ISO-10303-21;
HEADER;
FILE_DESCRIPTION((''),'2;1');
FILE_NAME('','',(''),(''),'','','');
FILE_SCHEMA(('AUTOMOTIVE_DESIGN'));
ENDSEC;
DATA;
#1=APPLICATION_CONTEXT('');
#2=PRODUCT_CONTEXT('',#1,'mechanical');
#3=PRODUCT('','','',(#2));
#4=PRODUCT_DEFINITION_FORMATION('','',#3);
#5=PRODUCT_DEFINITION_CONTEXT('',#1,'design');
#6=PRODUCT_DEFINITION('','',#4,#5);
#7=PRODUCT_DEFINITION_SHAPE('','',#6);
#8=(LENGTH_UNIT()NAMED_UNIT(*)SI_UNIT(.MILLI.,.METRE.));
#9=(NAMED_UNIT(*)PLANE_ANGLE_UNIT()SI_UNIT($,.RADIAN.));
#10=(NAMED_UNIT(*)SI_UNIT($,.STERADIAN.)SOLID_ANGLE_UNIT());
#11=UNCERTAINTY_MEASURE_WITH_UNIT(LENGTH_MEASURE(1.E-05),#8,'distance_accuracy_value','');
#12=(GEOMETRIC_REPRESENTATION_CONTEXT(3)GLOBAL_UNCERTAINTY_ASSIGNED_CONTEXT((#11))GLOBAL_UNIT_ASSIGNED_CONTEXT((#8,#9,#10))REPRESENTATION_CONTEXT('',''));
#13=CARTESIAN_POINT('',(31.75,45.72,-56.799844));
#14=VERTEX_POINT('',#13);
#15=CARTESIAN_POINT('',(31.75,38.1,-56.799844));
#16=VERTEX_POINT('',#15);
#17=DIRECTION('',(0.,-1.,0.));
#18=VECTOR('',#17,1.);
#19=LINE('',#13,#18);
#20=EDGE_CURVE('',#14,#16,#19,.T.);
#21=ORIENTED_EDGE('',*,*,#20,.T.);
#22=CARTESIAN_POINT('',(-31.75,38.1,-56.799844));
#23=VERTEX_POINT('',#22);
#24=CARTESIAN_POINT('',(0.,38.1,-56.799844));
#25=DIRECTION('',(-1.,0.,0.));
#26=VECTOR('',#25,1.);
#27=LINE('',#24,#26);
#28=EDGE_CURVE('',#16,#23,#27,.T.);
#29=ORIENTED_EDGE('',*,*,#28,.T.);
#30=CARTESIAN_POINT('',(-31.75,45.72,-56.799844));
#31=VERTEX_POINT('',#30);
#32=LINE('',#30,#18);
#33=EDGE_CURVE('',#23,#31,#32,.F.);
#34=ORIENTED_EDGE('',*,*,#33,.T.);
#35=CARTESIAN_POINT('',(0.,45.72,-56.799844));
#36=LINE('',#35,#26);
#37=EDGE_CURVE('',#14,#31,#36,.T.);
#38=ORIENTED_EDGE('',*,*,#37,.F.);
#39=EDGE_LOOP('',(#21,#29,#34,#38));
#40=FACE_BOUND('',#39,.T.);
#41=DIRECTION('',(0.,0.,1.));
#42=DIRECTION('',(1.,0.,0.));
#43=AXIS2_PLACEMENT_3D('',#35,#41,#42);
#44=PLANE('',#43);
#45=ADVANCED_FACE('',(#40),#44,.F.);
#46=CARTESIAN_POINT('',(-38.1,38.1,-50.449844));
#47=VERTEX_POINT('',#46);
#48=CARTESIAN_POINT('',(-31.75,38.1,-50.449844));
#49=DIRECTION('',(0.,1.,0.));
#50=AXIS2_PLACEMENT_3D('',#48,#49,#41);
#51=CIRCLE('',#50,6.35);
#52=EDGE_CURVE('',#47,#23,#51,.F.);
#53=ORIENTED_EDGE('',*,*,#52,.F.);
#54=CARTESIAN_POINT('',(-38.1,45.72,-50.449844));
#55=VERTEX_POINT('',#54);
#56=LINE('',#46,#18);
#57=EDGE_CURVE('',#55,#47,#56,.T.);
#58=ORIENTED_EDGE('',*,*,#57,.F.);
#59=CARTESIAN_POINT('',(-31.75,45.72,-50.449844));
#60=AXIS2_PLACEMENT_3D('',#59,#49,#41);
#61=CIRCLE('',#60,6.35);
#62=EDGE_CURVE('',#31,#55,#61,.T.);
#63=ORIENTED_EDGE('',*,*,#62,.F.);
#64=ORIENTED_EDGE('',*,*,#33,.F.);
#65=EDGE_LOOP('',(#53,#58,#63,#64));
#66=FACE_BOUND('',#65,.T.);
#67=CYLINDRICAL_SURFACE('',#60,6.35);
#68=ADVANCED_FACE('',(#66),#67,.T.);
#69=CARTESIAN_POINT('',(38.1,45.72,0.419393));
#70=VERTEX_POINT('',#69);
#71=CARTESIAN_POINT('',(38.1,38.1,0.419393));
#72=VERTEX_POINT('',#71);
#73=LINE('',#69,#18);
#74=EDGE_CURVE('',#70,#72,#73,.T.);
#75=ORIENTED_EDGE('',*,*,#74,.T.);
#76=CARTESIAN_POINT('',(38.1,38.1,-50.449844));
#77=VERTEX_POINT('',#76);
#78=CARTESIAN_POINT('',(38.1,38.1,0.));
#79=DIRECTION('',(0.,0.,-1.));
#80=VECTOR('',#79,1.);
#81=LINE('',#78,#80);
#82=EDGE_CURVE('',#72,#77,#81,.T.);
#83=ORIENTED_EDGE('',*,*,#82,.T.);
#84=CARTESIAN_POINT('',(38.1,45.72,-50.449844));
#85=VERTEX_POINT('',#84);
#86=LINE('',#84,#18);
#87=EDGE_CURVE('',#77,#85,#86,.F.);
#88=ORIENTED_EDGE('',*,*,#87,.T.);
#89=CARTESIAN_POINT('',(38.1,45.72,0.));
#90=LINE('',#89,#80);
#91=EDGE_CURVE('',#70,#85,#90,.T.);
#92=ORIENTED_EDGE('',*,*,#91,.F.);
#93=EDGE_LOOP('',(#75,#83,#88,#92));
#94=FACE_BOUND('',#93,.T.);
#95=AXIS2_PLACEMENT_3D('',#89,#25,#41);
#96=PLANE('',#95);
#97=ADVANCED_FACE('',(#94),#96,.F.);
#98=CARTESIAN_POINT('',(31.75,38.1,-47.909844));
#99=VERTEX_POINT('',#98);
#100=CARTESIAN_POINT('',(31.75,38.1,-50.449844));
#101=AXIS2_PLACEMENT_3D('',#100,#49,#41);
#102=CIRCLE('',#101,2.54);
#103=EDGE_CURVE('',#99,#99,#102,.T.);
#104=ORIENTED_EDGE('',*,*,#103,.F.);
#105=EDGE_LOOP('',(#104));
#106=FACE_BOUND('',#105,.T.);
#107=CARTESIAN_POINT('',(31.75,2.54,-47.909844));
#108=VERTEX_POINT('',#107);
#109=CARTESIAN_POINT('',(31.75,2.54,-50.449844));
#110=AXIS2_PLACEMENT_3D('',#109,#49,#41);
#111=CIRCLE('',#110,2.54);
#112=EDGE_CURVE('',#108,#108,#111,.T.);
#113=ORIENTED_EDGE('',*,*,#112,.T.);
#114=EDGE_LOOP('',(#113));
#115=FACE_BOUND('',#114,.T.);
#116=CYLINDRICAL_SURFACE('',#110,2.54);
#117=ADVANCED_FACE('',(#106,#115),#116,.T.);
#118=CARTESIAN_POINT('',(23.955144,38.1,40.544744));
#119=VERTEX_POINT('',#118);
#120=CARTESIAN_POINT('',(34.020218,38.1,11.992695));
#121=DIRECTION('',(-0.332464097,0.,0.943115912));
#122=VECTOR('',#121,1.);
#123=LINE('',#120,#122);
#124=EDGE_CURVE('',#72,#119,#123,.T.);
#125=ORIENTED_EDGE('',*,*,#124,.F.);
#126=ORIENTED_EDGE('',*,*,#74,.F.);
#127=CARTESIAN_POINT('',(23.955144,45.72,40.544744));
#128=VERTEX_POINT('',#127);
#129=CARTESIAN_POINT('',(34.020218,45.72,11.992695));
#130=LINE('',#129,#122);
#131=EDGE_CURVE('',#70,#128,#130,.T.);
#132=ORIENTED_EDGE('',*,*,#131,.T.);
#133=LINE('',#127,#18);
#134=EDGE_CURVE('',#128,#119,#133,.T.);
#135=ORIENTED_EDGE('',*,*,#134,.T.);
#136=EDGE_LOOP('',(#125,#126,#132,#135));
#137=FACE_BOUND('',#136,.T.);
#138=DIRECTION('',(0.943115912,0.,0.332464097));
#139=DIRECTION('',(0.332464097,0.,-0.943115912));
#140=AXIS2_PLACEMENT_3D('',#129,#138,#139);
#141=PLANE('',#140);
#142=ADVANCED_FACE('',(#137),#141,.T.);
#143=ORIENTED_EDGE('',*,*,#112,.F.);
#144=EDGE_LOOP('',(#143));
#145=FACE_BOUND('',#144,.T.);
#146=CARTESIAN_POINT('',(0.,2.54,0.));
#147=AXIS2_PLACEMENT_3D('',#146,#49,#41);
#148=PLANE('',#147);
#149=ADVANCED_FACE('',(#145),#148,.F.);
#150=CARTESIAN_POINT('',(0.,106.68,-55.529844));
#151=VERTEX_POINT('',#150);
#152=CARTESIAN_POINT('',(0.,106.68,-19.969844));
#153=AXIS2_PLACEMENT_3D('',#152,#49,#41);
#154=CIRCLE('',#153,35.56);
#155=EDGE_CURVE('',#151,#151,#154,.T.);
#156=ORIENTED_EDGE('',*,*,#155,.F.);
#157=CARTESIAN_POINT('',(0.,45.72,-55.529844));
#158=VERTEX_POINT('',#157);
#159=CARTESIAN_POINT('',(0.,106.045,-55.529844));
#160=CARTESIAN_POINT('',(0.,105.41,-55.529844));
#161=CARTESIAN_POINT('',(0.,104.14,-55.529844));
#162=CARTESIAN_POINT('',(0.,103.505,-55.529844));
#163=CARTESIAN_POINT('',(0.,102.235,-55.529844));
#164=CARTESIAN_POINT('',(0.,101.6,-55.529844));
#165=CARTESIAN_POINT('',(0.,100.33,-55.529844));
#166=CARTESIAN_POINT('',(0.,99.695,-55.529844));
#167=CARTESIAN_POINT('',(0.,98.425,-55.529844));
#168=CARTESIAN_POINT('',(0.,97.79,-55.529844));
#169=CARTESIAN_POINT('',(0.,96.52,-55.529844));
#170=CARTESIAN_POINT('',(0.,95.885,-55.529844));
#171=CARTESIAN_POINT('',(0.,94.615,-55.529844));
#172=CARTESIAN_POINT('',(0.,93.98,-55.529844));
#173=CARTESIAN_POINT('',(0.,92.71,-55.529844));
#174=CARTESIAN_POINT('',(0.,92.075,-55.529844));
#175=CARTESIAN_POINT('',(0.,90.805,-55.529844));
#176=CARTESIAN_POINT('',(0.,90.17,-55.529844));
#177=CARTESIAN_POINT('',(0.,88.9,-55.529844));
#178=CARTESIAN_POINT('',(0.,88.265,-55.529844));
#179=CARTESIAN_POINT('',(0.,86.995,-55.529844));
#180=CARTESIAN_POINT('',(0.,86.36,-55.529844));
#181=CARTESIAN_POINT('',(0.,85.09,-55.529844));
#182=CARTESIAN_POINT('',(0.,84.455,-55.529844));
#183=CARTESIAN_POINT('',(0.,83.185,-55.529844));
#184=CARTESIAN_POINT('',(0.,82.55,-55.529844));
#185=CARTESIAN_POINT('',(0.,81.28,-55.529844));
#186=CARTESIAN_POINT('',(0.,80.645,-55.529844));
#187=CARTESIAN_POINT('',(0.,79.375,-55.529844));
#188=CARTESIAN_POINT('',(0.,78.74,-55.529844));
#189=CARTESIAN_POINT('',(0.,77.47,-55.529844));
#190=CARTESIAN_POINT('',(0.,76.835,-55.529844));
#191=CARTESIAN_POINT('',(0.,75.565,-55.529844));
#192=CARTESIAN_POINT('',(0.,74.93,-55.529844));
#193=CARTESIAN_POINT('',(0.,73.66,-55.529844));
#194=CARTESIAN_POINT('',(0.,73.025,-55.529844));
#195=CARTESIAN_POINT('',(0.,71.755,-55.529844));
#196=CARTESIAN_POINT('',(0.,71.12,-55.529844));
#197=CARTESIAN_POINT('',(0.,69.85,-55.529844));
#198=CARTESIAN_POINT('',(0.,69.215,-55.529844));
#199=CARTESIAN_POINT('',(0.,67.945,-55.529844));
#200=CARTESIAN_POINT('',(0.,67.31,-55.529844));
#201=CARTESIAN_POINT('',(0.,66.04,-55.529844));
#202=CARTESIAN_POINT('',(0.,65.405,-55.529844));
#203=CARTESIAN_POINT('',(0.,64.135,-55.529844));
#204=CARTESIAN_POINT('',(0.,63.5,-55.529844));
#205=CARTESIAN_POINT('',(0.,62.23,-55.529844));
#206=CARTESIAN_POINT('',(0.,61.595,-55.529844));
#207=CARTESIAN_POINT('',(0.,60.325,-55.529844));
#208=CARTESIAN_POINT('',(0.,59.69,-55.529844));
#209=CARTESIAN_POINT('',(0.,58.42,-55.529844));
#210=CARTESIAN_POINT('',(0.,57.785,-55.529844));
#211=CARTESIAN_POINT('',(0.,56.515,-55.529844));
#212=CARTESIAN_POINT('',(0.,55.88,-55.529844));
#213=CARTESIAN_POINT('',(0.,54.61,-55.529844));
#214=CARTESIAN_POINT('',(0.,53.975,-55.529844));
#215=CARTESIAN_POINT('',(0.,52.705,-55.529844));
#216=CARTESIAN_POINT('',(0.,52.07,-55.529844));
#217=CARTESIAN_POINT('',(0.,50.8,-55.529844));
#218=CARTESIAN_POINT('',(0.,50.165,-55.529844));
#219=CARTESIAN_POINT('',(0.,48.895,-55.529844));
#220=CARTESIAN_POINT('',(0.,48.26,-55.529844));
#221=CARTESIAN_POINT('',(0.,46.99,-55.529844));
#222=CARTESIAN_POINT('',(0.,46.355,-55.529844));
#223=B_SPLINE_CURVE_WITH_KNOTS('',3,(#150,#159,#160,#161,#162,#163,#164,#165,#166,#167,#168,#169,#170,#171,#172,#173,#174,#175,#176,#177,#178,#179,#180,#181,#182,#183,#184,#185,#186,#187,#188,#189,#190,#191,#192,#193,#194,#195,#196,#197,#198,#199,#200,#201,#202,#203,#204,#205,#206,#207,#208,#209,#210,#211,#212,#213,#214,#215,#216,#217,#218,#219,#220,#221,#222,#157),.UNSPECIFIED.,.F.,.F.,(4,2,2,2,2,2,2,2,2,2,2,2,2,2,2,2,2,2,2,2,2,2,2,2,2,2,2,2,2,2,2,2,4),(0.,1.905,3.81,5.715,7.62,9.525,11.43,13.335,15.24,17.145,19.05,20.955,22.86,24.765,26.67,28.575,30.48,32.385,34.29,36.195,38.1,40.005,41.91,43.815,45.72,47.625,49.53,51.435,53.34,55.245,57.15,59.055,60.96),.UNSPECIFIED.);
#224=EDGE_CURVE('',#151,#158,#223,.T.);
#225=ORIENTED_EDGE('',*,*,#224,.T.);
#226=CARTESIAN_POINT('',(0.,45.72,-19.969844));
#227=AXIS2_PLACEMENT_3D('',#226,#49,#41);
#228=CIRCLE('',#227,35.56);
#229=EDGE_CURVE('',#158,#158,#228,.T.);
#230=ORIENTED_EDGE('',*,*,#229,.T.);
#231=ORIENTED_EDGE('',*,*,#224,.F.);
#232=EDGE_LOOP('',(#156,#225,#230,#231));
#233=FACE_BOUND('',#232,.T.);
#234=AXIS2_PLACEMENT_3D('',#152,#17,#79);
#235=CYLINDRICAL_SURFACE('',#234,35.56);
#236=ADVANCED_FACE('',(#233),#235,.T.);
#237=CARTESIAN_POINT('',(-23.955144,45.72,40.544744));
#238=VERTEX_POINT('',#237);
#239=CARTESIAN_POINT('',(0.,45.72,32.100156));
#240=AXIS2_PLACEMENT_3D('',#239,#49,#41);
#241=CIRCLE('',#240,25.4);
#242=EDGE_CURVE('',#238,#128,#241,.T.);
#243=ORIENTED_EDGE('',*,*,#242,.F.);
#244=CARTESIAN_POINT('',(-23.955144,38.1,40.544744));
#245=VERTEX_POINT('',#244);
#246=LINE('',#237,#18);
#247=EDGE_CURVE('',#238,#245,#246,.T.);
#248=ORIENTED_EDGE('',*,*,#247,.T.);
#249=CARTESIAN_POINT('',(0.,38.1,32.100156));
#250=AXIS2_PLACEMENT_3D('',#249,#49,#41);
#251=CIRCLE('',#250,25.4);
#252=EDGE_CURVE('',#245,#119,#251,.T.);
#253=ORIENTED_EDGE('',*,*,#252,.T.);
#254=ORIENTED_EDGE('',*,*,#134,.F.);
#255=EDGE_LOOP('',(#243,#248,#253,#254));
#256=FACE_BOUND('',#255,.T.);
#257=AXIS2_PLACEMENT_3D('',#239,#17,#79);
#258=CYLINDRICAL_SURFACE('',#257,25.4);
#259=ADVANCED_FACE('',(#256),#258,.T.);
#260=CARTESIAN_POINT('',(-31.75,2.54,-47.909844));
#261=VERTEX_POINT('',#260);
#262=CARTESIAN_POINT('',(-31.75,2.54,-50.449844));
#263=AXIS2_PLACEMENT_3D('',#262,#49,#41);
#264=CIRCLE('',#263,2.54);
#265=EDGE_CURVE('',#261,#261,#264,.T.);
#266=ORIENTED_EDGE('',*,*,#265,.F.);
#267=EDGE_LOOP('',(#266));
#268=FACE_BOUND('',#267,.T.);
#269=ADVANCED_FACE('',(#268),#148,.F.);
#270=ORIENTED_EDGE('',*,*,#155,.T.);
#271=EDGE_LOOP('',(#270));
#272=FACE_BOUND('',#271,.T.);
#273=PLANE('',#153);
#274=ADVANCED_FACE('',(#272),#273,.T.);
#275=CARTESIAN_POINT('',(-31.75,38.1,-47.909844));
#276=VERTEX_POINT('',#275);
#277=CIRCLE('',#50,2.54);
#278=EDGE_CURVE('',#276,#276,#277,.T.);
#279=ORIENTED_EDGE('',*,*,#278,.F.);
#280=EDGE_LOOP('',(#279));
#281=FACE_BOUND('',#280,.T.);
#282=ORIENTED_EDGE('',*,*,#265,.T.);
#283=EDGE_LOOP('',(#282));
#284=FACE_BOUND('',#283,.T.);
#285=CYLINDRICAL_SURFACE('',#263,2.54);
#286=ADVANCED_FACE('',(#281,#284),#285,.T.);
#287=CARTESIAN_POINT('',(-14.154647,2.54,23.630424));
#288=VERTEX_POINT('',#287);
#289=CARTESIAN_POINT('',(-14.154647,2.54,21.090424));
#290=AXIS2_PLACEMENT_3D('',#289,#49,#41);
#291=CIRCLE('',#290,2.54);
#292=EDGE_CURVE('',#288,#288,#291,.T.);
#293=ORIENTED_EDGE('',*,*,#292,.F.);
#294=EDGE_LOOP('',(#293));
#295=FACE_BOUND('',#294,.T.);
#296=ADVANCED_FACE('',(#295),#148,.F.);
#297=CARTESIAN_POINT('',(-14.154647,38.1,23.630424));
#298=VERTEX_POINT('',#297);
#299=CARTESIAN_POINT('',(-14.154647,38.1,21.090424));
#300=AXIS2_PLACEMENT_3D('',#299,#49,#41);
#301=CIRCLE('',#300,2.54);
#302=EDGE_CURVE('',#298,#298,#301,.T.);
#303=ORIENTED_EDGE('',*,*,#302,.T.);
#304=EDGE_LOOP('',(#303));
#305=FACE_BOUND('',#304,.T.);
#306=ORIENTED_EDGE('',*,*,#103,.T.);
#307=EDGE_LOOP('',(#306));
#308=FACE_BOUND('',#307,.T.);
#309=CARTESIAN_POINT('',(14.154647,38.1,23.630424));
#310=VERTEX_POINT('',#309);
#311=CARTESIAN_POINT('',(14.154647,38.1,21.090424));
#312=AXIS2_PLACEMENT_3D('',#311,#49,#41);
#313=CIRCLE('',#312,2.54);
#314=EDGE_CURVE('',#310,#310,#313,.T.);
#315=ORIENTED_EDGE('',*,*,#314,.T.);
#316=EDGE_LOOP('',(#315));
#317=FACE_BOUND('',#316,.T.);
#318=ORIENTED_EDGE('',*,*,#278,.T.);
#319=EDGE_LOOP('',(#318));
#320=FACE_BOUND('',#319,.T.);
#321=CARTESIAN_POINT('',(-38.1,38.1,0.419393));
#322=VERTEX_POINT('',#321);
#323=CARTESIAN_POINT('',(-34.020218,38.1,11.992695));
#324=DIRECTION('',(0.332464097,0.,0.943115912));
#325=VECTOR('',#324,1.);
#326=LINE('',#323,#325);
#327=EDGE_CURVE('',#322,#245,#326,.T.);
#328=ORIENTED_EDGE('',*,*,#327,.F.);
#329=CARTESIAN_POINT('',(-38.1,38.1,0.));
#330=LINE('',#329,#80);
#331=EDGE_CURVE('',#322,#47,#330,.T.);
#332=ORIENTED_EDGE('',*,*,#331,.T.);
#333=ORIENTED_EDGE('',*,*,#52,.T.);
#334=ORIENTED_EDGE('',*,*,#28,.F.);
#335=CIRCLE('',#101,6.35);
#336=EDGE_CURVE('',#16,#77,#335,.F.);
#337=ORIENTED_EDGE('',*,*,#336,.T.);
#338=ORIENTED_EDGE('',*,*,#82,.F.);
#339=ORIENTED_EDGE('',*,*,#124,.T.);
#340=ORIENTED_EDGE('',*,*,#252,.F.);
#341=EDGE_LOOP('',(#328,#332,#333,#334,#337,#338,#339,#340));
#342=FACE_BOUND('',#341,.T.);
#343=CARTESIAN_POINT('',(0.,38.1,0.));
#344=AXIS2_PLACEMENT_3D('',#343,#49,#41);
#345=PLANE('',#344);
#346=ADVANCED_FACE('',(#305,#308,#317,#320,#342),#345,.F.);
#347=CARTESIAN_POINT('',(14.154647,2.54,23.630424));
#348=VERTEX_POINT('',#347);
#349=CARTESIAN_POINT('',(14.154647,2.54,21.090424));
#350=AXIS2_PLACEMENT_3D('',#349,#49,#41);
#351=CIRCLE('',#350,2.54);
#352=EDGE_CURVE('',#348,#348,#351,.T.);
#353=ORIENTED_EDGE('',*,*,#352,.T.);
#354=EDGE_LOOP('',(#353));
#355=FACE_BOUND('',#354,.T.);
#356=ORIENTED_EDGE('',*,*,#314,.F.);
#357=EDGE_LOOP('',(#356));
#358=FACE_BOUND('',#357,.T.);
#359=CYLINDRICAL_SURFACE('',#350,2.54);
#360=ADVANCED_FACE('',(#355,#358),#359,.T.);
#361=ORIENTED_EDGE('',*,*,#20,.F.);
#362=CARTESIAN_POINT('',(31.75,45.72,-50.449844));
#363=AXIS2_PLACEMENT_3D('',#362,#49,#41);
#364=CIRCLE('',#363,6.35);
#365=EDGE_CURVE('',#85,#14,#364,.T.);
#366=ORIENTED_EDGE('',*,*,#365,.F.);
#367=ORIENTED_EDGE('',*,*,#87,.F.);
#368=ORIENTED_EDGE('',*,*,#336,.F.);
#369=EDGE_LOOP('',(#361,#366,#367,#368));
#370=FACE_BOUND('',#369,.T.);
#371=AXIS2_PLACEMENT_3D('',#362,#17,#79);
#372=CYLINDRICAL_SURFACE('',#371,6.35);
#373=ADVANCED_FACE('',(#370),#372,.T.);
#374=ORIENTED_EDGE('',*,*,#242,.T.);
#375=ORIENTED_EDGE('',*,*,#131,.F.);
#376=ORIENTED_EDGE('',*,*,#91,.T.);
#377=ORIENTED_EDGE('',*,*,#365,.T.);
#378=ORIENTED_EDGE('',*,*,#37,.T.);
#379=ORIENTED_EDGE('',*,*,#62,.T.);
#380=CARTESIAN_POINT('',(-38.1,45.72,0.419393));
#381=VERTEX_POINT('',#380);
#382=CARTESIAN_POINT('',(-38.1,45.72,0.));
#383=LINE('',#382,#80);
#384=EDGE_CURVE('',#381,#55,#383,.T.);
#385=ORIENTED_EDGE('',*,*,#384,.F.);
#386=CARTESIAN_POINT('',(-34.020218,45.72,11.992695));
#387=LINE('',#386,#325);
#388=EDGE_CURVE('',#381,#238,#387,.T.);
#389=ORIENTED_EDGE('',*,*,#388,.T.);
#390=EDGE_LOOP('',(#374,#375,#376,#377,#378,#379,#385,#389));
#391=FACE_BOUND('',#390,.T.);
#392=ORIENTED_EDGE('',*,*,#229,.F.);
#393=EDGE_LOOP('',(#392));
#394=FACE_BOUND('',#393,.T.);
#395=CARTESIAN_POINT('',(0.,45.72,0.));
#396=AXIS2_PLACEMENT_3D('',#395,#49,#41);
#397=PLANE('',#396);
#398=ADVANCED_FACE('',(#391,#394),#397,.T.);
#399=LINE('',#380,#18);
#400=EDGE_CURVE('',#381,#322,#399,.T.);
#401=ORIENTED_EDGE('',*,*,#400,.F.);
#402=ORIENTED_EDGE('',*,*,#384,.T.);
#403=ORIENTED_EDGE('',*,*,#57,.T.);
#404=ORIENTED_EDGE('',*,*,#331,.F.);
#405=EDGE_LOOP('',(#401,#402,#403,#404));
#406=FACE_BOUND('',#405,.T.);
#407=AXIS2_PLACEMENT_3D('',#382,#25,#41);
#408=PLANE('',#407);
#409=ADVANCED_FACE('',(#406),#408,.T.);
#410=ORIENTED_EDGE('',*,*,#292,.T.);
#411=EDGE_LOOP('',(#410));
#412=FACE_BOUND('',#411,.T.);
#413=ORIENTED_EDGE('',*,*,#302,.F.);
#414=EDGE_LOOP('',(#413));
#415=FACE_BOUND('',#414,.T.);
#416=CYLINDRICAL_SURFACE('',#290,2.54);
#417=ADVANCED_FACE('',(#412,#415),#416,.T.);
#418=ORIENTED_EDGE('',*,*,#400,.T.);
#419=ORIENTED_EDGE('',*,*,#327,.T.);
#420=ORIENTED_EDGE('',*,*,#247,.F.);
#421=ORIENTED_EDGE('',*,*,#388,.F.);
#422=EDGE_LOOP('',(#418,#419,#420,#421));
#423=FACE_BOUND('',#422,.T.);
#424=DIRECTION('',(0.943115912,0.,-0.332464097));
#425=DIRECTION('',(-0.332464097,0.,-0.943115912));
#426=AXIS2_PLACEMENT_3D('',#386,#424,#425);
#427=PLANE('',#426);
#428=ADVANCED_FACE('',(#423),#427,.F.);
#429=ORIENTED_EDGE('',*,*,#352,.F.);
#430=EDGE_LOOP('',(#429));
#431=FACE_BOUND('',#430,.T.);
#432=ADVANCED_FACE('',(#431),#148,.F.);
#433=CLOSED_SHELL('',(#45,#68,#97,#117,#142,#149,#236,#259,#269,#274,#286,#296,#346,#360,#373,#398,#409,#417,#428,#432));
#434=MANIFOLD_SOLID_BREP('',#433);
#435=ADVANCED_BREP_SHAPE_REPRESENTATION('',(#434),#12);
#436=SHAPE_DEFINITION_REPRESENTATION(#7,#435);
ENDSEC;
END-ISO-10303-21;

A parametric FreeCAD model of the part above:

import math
import FreeCAD as App
import Part
import Sketcher

V = App.Vector
Q = App.Units.Quantity


def edges_at(feature, points):
    """Names of the edges that pass closest to the given points."""
    edges = feature.Shape.Edges
    near = lambda p: min(range(len(edges)), key=lambda i: edges[i].distToShape(Part.Vertex(*p))[0])
    return sorted({f"Edge{near(p) + 1}" for p in points})

doc = App.newDocument("Part")
body = doc.addObject("PartDesign::Body", "Body")

sketch1 = body.newObject("Sketcher::SketchObject", "Sketch")
sketch1.AttachmentSupport = (doc.getObject("XZ_Plane"), [""])
sketch1.MapMode = "FlatFace"
sketch1.AttachmentOffset = App.Placement(V(0, 0, -1.5 * 25.4), App.Rotation())
sketch1.addGeometry([
    Part.LineSegment(V(-38, 0, 0), V(-24, 41, 0)),
    Part.ArcOfCircle(Part.Circle(V(0, 32, 0), V(0, 0, 1), 25), math.radians(19), math.radians(161)),
    Part.LineSegment(V(24, 41, 0), V(38, 0, 0)),
    Part.LineSegment(V(38, 0, 0), V(38, -57, 0)),
    Part.LineSegment(V(38, -57, 0), V(-38, -57, 0)),
    Part.LineSegment(V(-38, -57, 0), V(-38, 0, 0)),
], False)
sketch1.addConstraint([
    Sketcher.Constraint("Tangent", 0, 2, 1, 2),
    Sketcher.Constraint("Tangent", 1, 1, 2, 1),
    Sketcher.Constraint("Coincident", 2, 2, 3, 1),
    Sketcher.Constraint("Coincident", 3, 2, 4, 1),
    Sketcher.Constraint("Coincident", 4, 2, 5, 1),
    Sketcher.Constraint("Coincident", 5, 2, 0, 1),
    Sketcher.Constraint("Vertical", 3),
    Sketcher.Constraint("Horizontal", 4),
    Sketcher.Constraint("Vertical", 5),
    Sketcher.Constraint("Symmetric", 0, 2, 1, 1, -2),
    Sketcher.Constraint("Horizontal", 2, 2, 5, 2),
    Sketcher.Constraint("Radius", 1, Q("1 in")),
    Sketcher.Constraint("DistanceX", 4, 2, 4, 1, Q("3 in")),
    Sketcher.Constraint("DistanceY", 3, 2, 1, 3, Q("3.5 in")),
    Sketcher.Constraint("DistanceY", 3, 2, 3, 1, 57.219237),
    Sketcher.Constraint("DistanceY", -1, 1, 1, 3, 32.100156),
])
pad1 = body.newObject("PartDesign::Pad", "Pad")
pad1.Profile = sketch1
pad1.Length = Q("0.3 in")
pad1.Reversed = True
doc.recompute()

fillet = body.newObject("PartDesign::Fillet", "Fillet")
fillet.Base = (pad1, edges_at(pad1, [(-38.1, 41.91, -56.8), (38.1, 41.91, -56.8)]))
fillet.Radius = Q("0.25 in")

sketch2 = body.newObject("Sketcher::SketchObject", "Sketch001")
sketch2.AttachmentSupport = (doc.getObject("XZ_Plane"), [""])
sketch2.MapMode = "FlatFace"
sketch2.AttachmentOffset = App.Placement(V(0, 0, -1.8 * 25.4), App.Rotation())
sketch2.addGeometry([
    Part.Circle(V(-31.8, -50.4, 0), V(0, 0, 1), 2.5),
    Part.Circle(V(31.8, -50.4, 0), V(0, 0, 1), 2.5),
    Part.Circle(V(-14.2, 21.1, 0), V(0, 0, 1), 2.5),
    Part.Circle(V(14.2, 21.1, 0), V(0, 0, 1), 2.5),
], False)
sketch2.addConstraint([
    Sketcher.Constraint("Equal", 0, 1),
    Sketcher.Constraint("Equal", 1, 2),
    Sketcher.Constraint("Equal", 2, 3),
    Sketcher.Constraint("Symmetric", 0, 3, 1, 3, -2),
    Sketcher.Constraint("Symmetric", 2, 3, 3, 3, -2),
    Sketcher.Constraint("Diameter", 0, Q("0.2 in")),
    Sketcher.Constraint("DistanceX", 0, 3, 1, 3, Q("2.5 in")),
    Sketcher.Constraint("DistanceY", 0, 3, -1, 1, 50.449844),
    Sketcher.Constraint("DistanceX", 2, 3, -1, 1, 14.154647),
    Sketcher.Constraint("DistanceY", -1, 1, 2, 3, 21.090424),
])
pad2 = body.newObject("PartDesign::Pad", "Pad001")
pad2.Profile = sketch2
pad2.Length = Q("1.7 in")

sketch3 = body.newObject("Sketcher::SketchObject", "Sketch002")
sketch3.AttachmentSupport = (doc.getObject("XZ_Plane"), [""])
sketch3.MapMode = "FlatFace"
sketch3.AttachmentOffset = App.Placement(V(0, 0, -1.8 * 25.4), App.Rotation())
sketch3.addGeometry(Part.Circle(V(0, -20, 0), V(0, 0, 1), 36), False)
sketch3.addConstraint([
    Sketcher.Constraint("PointOnObject", 0, 3, -2),
    Sketcher.Constraint("Diameter", 0, Q("2.8 in")),
    Sketcher.Constraint("DistanceY", 0, 3, -1, 1, 19.969844),
])
pad3 = body.newObject("PartDesign::Pad", "Pad002")
pad3.Profile = sketch3
pad3.Length = Q("2.4 in")
pad3.Reversed = True

doc.recompute()
